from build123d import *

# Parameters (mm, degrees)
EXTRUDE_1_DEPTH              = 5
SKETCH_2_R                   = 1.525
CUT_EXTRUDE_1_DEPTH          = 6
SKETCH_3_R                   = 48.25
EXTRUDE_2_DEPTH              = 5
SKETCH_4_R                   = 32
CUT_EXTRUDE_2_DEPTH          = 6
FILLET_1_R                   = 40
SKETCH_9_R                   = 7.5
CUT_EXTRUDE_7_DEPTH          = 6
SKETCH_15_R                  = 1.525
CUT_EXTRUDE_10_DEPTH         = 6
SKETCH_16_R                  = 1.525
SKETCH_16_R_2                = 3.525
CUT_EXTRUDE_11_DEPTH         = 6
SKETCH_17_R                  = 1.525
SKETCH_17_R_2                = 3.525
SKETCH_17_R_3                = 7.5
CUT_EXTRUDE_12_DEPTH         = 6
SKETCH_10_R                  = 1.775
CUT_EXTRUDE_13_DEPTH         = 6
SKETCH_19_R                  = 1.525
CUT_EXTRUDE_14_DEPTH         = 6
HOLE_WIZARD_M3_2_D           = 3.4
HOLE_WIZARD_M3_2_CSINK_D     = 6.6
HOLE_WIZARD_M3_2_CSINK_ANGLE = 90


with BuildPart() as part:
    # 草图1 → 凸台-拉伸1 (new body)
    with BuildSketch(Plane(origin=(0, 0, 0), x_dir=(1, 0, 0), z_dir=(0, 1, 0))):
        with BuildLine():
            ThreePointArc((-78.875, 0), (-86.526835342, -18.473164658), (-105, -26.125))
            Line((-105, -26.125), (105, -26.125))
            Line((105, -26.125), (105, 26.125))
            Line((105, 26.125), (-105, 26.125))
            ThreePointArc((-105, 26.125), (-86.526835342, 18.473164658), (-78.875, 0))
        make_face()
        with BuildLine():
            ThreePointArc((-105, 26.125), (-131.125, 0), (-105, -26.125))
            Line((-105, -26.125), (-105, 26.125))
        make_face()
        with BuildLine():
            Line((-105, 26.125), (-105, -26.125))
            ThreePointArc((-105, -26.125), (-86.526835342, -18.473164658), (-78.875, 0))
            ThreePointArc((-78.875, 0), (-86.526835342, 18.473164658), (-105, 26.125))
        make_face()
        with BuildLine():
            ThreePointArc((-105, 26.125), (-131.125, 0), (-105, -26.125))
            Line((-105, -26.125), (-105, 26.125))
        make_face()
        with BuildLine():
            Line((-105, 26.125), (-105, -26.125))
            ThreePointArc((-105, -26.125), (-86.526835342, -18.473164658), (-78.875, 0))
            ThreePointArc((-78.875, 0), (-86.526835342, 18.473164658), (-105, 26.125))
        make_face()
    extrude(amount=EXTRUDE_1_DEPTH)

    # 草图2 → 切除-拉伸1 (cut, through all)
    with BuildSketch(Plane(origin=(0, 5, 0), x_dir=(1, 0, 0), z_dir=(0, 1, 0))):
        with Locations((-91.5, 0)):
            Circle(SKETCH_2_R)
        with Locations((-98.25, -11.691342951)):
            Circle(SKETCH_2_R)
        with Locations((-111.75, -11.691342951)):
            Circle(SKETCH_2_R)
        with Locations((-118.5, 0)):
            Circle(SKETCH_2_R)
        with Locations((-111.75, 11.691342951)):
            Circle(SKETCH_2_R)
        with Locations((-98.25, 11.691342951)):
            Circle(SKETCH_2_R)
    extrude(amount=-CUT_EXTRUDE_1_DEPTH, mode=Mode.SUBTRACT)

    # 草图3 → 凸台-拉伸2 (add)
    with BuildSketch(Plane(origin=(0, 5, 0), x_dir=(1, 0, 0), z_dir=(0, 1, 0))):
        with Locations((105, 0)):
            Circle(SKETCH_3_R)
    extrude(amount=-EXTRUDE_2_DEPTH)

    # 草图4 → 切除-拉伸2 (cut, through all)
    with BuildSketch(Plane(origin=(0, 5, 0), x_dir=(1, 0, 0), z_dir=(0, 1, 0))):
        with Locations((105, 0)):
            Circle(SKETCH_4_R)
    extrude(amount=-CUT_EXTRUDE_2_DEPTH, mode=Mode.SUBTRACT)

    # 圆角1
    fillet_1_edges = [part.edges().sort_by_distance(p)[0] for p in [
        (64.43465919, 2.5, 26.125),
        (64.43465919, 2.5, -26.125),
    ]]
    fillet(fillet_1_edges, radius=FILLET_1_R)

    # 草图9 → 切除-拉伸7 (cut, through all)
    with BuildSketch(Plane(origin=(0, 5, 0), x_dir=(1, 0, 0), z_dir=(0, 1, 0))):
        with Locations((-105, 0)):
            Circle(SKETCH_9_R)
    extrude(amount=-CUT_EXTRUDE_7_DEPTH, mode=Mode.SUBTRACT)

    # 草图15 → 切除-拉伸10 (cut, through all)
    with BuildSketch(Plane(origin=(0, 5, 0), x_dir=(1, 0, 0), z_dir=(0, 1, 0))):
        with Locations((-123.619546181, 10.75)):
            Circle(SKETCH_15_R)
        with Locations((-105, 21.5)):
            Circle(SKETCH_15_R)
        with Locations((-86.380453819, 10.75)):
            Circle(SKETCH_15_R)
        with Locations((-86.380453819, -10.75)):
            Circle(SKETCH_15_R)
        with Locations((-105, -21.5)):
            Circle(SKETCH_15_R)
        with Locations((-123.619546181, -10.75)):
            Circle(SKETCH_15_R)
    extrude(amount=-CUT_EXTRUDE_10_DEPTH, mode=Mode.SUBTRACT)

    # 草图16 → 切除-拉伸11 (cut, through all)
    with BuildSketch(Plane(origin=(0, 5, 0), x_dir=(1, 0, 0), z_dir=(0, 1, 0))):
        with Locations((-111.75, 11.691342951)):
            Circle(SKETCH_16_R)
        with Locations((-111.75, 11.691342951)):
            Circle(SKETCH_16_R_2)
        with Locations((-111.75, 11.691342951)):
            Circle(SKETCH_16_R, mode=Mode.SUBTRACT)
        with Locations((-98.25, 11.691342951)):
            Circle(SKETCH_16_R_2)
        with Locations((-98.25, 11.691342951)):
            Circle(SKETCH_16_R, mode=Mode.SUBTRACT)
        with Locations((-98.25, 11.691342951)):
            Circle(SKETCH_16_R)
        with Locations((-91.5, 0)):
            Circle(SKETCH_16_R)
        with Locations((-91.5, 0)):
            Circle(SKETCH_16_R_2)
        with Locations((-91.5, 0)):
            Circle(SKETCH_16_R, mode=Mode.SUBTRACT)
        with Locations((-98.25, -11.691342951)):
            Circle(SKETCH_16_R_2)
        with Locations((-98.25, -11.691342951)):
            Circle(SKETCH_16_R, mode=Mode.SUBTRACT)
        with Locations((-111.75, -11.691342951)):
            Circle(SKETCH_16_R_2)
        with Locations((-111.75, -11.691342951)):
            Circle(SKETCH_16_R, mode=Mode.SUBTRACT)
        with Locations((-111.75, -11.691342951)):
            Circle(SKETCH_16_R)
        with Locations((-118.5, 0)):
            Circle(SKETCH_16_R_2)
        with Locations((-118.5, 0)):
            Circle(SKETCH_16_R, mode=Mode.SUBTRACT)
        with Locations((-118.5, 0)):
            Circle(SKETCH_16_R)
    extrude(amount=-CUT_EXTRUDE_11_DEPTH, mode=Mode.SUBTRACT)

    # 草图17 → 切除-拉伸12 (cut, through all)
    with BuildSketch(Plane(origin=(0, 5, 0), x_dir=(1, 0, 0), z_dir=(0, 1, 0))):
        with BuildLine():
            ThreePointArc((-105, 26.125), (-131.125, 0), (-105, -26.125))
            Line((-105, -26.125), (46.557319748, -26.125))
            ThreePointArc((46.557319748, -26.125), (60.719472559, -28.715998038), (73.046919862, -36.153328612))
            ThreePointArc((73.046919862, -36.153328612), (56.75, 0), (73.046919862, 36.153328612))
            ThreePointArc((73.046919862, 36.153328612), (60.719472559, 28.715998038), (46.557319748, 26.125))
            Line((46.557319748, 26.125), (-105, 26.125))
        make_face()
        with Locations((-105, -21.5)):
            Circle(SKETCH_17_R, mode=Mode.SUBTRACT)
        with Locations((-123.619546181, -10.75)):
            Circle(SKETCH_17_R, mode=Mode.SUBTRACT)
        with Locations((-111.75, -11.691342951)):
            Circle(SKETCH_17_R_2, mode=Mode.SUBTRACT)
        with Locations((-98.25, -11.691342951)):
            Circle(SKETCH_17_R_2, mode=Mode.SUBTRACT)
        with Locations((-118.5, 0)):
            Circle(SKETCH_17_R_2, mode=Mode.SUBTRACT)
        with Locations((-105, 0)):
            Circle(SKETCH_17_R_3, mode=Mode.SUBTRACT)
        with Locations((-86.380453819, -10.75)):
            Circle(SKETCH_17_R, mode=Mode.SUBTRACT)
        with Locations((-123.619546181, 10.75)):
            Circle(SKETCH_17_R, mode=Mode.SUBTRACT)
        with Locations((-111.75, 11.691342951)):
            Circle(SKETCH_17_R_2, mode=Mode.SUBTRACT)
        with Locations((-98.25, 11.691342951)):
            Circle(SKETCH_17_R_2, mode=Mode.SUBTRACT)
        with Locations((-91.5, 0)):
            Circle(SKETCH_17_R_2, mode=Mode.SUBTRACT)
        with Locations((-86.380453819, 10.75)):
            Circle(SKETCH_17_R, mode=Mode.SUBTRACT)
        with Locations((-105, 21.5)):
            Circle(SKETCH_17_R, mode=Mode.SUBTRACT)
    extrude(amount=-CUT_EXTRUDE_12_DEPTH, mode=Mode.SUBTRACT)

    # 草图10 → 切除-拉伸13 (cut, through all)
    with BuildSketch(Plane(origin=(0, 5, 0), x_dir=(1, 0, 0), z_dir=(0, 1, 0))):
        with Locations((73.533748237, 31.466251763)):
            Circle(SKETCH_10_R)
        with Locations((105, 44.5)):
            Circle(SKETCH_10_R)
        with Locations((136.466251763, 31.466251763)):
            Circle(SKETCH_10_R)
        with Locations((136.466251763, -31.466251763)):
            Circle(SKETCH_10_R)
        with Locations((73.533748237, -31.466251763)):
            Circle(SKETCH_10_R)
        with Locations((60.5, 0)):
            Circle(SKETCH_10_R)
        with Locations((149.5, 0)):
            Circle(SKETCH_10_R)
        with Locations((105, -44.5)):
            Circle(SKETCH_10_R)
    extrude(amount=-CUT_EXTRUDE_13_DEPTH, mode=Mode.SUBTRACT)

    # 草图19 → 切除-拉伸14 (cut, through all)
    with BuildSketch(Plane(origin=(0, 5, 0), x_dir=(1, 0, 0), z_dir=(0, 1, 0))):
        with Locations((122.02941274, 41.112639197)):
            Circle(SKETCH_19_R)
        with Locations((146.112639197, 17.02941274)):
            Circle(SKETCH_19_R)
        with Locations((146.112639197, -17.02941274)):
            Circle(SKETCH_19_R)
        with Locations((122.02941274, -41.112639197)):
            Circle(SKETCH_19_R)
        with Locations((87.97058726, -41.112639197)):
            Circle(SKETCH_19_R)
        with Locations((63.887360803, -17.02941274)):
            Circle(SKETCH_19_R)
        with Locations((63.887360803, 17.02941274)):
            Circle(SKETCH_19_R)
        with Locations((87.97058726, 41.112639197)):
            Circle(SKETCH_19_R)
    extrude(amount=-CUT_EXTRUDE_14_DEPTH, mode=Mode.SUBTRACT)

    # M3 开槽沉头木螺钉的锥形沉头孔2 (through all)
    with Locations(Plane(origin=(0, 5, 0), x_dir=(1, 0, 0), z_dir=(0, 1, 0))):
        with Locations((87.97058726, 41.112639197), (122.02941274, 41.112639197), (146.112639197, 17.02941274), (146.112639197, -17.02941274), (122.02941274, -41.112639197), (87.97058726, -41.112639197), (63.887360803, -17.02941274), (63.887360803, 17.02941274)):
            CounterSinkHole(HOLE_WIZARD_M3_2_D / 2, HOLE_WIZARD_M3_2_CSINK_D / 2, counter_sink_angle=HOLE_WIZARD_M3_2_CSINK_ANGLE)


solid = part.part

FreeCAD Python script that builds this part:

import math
import FreeCAD as App
import Part
import Sketcher
Q = App.Units.Quantity


def edges_at(feature, points):
    """Names of the edges that pass closest to the given points."""
    edges = feature.Shape.Edges
    near = lambda p: min(range(len(edges)), key=lambda i: edges[i].distToShape(Part.Vertex(*p))[0])
    return sorted({f"Edge{near(p) + 1}" for p in points})

doc = App.newDocument("Part")
body = doc.addObject("PartDesign::Body", "Body")

sketch1 = body.newObject("Sketcher::SketchObject", "Sketch")
sketch1.AttachmentSupport = (doc.getObject("XZ_Plane"), [""])
sketch1.MapMode = "FlatFace"
sketch1.addGeometry([
    Part.LineSegment(App.Vector(105, 26, 0), App.Vector(105, -26, 0)),
    Part.LineSegment(App.Vector(105, -26, 0), App.Vector(-105, -26, 0)),
    Part.ArcOfCircle(Part.Circle(App.Vector(-105, 0, 0), App.Vector(0, 0, 1), 26), math.radians(90), math.radians(270)),
    Part.LineSegment(App.Vector(-105, 26, 0), App.Vector(105, 26, 0)),
], False)
sketch1.addConstraint([
    Sketcher.Constraint("Coincident", 0, 2, 1, 1),
    Sketcher.Constraint("Tangent", 1, 2, 2, 2),
    Sketcher.Constraint("Tangent", 2, 1, 3, 1),
    Sketcher.Constraint("Coincident", 3, 2, 0, 1),
    Sketcher.Constraint("Vertical", 0),
    Sketcher.Constraint("Horizontal", 1),
    Sketcher.Constraint("Horizontal", 3),
    Sketcher.Constraint("Symmetric", 0, 2, 2, 1, -1, 1),
    Sketcher.Constraint("DistanceX", 1, 2, 1, 1, Q("210 mm")),
    Sketcher.Constraint("Radius", 2, Q("26.125 mm")),
])
pad1 = body.newObject("PartDesign::Pad", "Pad")
pad1.Profile = sketch1
pad1.Length = 5
pad1.Reversed = True

sketch2 = body.newObject("Sketcher::SketchObject", "Sketch001")
sketch2.AttachmentSupport = (doc.getObject("XZ_Plane"), [""])
sketch2.MapMode = "FlatFace"
sketch2.AttachmentOffset = App.Placement(App.Vector(0, 0, -5), App.Rotation())
sketch2.addGeometry([
    Part.Circle(App.Vector(-91.5, 0, 0), App.Vector(0, 0, 1), 1.5),
    Part.Circle(App.Vector(-98.2, 11.7, 0), App.Vector(0, 0, 1), 1.5),
    Part.Circle(App.Vector(-111.8, 11.7, 0), App.Vector(0, 0, 1), 1.5),
    Part.Circle(App.Vector(-118.5, 0, 0), App.Vector(0, 0, 1), 1.5),
    Part.Circle(App.Vector(-111.8, -11.7, 0), App.Vector(0, 0, 1), 1.5),
    Part.Circle(App.Vector(-98.2, -11.7, 0), App.Vector(0, 0, 1), 1.5),
], False)
sketch2.addConstraint([
    Sketcher.Constraint("Equal", 0, 1),
    Sketcher.Constraint("Equal", 1, 2),
    Sketcher.Constraint("Equal", 2, 3),
    Sketcher.Constraint("Equal", 3, 4),
    Sketcher.Constraint("Equal", 4, 5),
    Sketcher.Constraint("Symmetric", 2, 3, 4, 3, -1),
    Sketcher.Constraint("Symmetric", 1, 3, 5, 3, -1),
    Sketcher.Constraint("PointOnObject", 0, 3, -1),
    Sketcher.Constraint("PointOnObject", 3, 3, -1),
    Sketcher.Constraint("Horizontal", 1, 3, 2, 3),
    Sketcher.Constraint("Diameter", 0, Q("3.05 mm")),
    Sketcher.Constraint("DistanceX", 3, 3, 0, 3, Q("27 mm")),
    Sketcher.Constraint("DistanceX", 0, 3, -1, 1, Q("91.5 mm")),
    Sketcher.Constraint("DistanceX", 2, 3, 1, 3, Q("13.5 mm")),
    Sketcher.Constraint("DistanceX", 1, 3, -1, 1, Q("98.25 mm")),
    Sketcher.Constraint("DistanceY", -1, 1, 1, 3, Q("11.691343 mm")),
])
pocket1 = body.newObject("PartDesign::Pocket", "Pocket")
pocket1.Profile = sketch2
pocket1.Type = "ThroughAll"
pocket1.Reversed = True

sketch3 = body.newObject("Sketcher::SketchObject", "Sketch002")
sketch3.AttachmentSupport = (doc.getObject("XZ_Plane"), [""])
sketch3.MapMode = "FlatFace"
sketch3.AttachmentOffset = App.Placement(App.Vector(0, 0, -5), App.Rotation())
sketch3.addGeometry(Part.Circle(App.Vector(105, 0, 0), App.Vector(0, 0, 1), 48), False)
sketch3.addConstraint([
    Sketcher.Constraint("PointOnObject", 0, 3, -1),
    Sketcher.Constraint("Diameter", 0, Q("96.5 mm")),
    Sketcher.Constraint("DistanceX", -1, 1, 0, 3, Q("105 mm")),
])
pad2 = body.newObject("PartDesign::Pad", "Pad001")
pad2.Profile = sketch3
pad2.Length = 5

sketch4 = body.newObject("Sketcher::SketchObject", "Sketch003")
sketch4.AttachmentSupport = (doc.getObject("XZ_Plane"), [""])
sketch4.MapMode = "FlatFace"
sketch4.AttachmentOffset = App.Placement(App.Vector(0, 0, -5), App.Rotation())
sketch4.addGeometry(Part.Circle(App.Vector(105, 0, 0), App.Vector(0, 0, 1), 32), False)
sketch4.addConstraint([
    Sketcher.Constraint("PointOnObject", 0, 3, -1),
    Sketcher.Constraint("Diameter", 0, Q("64 mm")),
    Sketcher.Constraint("DistanceX", -1, 1, 0, 3, Q("105 mm")),
])
pocket2 = body.newObject("PartDesign::Pocket", "Pocket001")
pocket2.Profile = sketch4
pocket2.Type = "ThroughAll"
pocket2.Reversed = True
doc.recompute()

fillet = body.newObject("PartDesign::Fillet", "Fillet")
fillet.Base = (pocket2, edges_at(pocket2, [(64.435, 2.5, 26.125), (64.435, 2.5, -26.125)]))
fillet.Radius = 40

sketch5 = body.newObject("Sketcher::SketchObject", "Sketch004")
sketch5.AttachmentSupport = (doc.getObject("XZ_Plane"), [""])
sketch5.MapMode = "FlatFace"
sketch5.AttachmentOffset = App.Placement(App.Vector(0, 0, -5), App.Rotation())
sketch5.addGeometry(Part.Circle(App.Vector(-105, 0, 0), App.Vector(0, 0, 1), 8), False)
sketch5.addConstraint([
    Sketcher.Constraint("PointOnObject", 0, 3, -1),
    Sketcher.Constraint("Diameter", 0, Q("15 mm")),
    Sketcher.Constraint("DistanceX", 0, 3, -1, 1, Q("105 mm")),
])
pocket3 = body.newObject("PartDesign::Pocket", "Pocket002")
pocket3.Profile = sketch5
pocket3.Type = "ThroughAll"
pocket3.Reversed = True

sketch6 = body.newObject("Sketcher::SketchObject", "Sketch005")
sketch6.AttachmentSupport = (doc.getObject("XZ_Plane"), [""])
sketch6.MapMode = "FlatFace"
sketch6.AttachmentOffset = App.Placement(App.Vector(0, 0, -5), App.Rotation())
sketch6.addGeometry([
    Part.Circle(App.Vector(-123.6, -10.8, 0), App.Vector(0, 0, 1), 1.5),
    Part.Circle(App.Vector(-105, -21.5, 0), App.Vector(0, 0, 1), 1.5),
    Part.Circle(App.Vector(-86.4, -10.8, 0), App.Vector(0, 0, 1), 1.5),
    Part.Circle(App.Vector(-86.4, 10.8, 0), App.Vector(0, 0, 1), 1.5),
    Part.Circle(App.Vector(-105, 21.5, 0), App.Vector(0, 0, 1), 1.5),
    Part.Circle(App.Vector(-123.6, 10.8, 0), App.Vector(0, 0, 1), 1.5),
], False)
sketch6.addConstraint([
    Sketcher.Constraint("Equal", 0, 1),
    Sketcher.Constraint("Equal", 1, 2),
    Sketcher.Constraint("Equal", 2, 3),
    Sketcher.Constraint("Equal", 3, 4),
    Sketcher.Constraint("Equal", 4, 5),
    Sketcher.Constraint("Symmetric", 2, 3, 3, 3, -1),
    Sketcher.Constraint("Symmetric", 1, 3, 4, 3, -1),
    Sketcher.Constraint("Symmetric", 0, 3, 5, 3, -1),
    Sketcher.Constraint("Horizontal", 0, 3, 2, 3),
    Sketcher.Constraint("Diameter", 0, Q("3.05 mm")),
    Sketcher.Constraint("DistanceX", 1, 3, -1, 1, Q("105 mm")),
    Sketcher.Constraint("DistanceY", 1, 3, 4, 3, Q("43 mm")),
    Sketcher.Constraint("DistanceY", 2, 3, 3, 3, Q("21.5 mm")),
    Sketcher.Constraint("DistanceX", 0, 3, -1, 1, Q("123.619546 mm")),
    Sketcher.Constraint("DistanceX", 2, 3, -1, 1, Q("86.380454 mm")),
])
pocket4 = body.newObject("PartDesign::Pocket", "Pocket003")
pocket4.Profile = sketch6
pocket4.Type = "ThroughAll"
pocket4.Reversed = True

sketch7 = body.newObject("Sketcher::SketchObject", "Sketch006")
sketch7.AttachmentSupport = (doc.getObject("XZ_Plane"), [""])
sketch7.MapMode = "FlatFace"
sketch7.AttachmentOffset = App.Placement(App.Vector(0, 0, -5), App.Rotation())
sketch7.addGeometry([
    Part.Circle(App.Vector(-111.8, -11.7, 0), App.Vector(0, 0, 1), 3.5),
    Part.Circle(App.Vector(-111.8, -11.7, 0), App.Vector(0, 0, 1), 1.5),
    Part.Circle(App.Vector(-98.2, -11.7, 0), App.Vector(0, 0, 1), 3.5),
    Part.Circle(App.Vector(-91.5, 0, 0), App.Vector(0, 0, 1), 3.5),
    Part.Circle(App.Vector(-91.5, 0, 0), App.Vector(0, 0, 1), 1.5),
    Part.Circle(App.Vector(-98.2, 11.7, 0), App.Vector(0, 0, 1), 3.5),
    Part.Circle(App.Vector(-98.2, 11.7, 0), App.Vector(0, 0, 1), 1.5),
    Part.Circle(App.Vector(-111.8, 11.7, 0), App.Vector(0, 0, 1), 3.5),
    Part.Circle(App.Vector(-118.5, 0, 0), App.Vector(0, 0, 1), 3.5),
], False)
sketch7.addConstraint([
    Sketcher.Constraint("Coincident", 1, 3, 0, 3),
    Sketcher.Constraint("Coincident", 4, 3, 3, 3),
    Sketcher.Constraint("Coincident", 6, 3, 5, 3),
    Sketcher.Constraint("Equal", 0, 2),
    Sketcher.Constraint("Equal", 2, 3),
    Sketcher.Constraint("Equal", 1, 4),
    Sketcher.Constraint("Equal", 3, 5),
    Sketcher.Constraint("Equal", 4, 6),
    Sketcher.Constraint("Equal", 5, 7),
    Sketcher.Constraint("Equal", 7, 8),
    Sketcher.Constraint("Symmetric", 2, 3, 5, 3, -1),
    Sketcher.Constraint("Symmetric", 0, 3, 7, 3, -1),
    Sketcher.Constraint("PointOnObject", 3, 3, -1),
    Sketcher.Constraint("PointOnObject", 8, 3, -1),
    Sketcher.Constraint("Horizontal", 1, 3, 2, 3),
    Sketcher.Constraint("Diameter", 0, Q("7.05 mm")),
    Sketcher.Constraint("Diameter", 1, Q("3.05 mm")),
    Sketcher.Constraint("DistanceX", 3, 3, -1, 1, Q("91.5 mm")),
    Sketcher.Constraint("DistanceX", 8, 3, -1, 1, Q("118.5 mm")),
    Sketcher.Constraint("DistanceX", 0, 3, 2, 3, Q("13.5 mm")),
    Sketcher.Constraint("DistanceX", 0, 3, -1, 1, Q("111.75 mm")),
    Sketcher.Constraint("DistanceY", 0, 3, -1, 1, Q("11.691343 mm")),
])
pocket5 = body.newObject("PartDesign::Pocket", "Pocket004")
pocket5.Profile = sketch7
pocket5.Type = "ThroughAll"
pocket5.Reversed = True

sketch8 = body.newObject("Sketcher::SketchObject", "Sketch007")
sketch8.AttachmentSupport = (doc.getObject("XZ_Plane"), [""])
sketch8.MapMode = "FlatFace"
sketch8.AttachmentOffset = App.Placement(App.Vector(0, 0, -5), App.Rotation())
sketch8.addGeometry([
    Part.ArcOfCircle(Part.Circle(App.Vector(-105, 0, 0), App.Vector(0, 0, 1), 26.1), math.radians(90), math.radians(270)),
    Part.LineSegment(App.Vector(-105, 26.1, 0), App.Vector(46.6, 26.1, 0)),
    Part.ArcOfCircle(Part.Circle(App.Vector(46.6, 66.1, 0), App.Vector(0, 0, 1), 40), math.radians(-90), math.radians(-49)),
    Part.ArcOfCircle(Part.Circle(App.Vector(105, 0, 0), App.Vector(0, 0, 1), 48.3), math.radians(131), math.radians(229)),
    Part.ArcOfCircle(Part.Circle(App.Vector(46.6, -66.1, 0), App.Vector(0, 0, 1), 40), math.radians(49), math.radians(90)),
    Part.LineSegment(App.Vector(46.6, -26.1, 0), App.Vector(-105, -26.1, 0)),
    Part.Circle(App.Vector(-111.8, 11.7, 0), App.Vector(0, 0, 1), 3.5),
    Part.Circle(App.Vector(-123.6, 10.8, 0), App.Vector(0, 0, 1), 1.5),
    Part.Circle(App.Vector(-105, 21.5, 0), App.Vector(0, 0, 1), 1.5),
    Part.Circle(App.Vector(-98.2, 11.7, 0), App.Vector(0, 0, 1), 3.5),
    Part.Circle(App.Vector(-86.4, 10.8, 0), App.Vector(0, 0, 1), 1.5),
    Part.Circle(App.Vector(-118.5, 0, 0), App.Vector(0, 0, 1), 3.5),
    Part.Circle(App.Vector(-123.6, -10.8, 0), App.Vector(0, 0, 1), 1.5),
    Part.Circle(App.Vector(-111.8, -11.7, 0), App.Vector(0, 0, 1), 3.5),
    Part.Circle(App.Vector(-105, 0, 0), App.Vector(0, 0, 1), 7.5),
    Part.Circle(App.Vector(-91.5, 0, 0), App.Vector(0, 0, 1), 3.5),
    Part.Circle(App.Vector(-86.4, -10.8, 0), App.Vector(0, 0, 1), 1.5),
    Part.Circle(App.Vector(-98.2, -11.7, 0), App.Vector(0, 0, 1), 3.5),
    Part.Circle(App.Vector(-105, -21.5, 0), App.Vector(0, 0, 1), 1.5),
], False)
sketch8.addConstraint([
    Sketcher.Constraint("Tangent", 0, 1, 1, 1),
    Sketcher.Constraint("Tangent", 1, 2, 2, 1),
    Sketcher.Constraint("Tangent", 2, 2, 3, 1),
    Sketcher.Constraint("Tangent", 3, 2, 4, 1),
    Sketcher.Constraint("Tangent", 4, 2, 5, 1),
    Sketcher.Constraint("Tangent", 5, 2, 0, 2),
    Sketcher.Constraint("Horizontal", 1),
    Sketcher.Constraint("Horizontal", 5),
    Sketcher.Constraint("Coincident", 14, 3, 0, 3),
    Sketcher.Constraint("Equal", 2, 4),
    Sketcher.Constraint("Equal", 7, 8),
    Sketcher.Constraint("Equal", 6, 9),
    Sketcher.Constraint("Equal", 8, 10),
    Sketcher.Constraint("Equal", 9, 11),
    Sketcher.Constraint("Equal", 10, 12),
    Sketcher.Constraint("Equal", 11, 13),
    Sketcher.Constraint("Equal", 13, 15),
    Sketcher.Constraint("Equal", 12, 16),
    Sketcher.Constraint("Equal", 15, 17),
    Sketcher.Constraint("Equal", 16, 18),
    Sketcher.Constraint("Symmetric", 0, 3, 3, 3, -1, 1),
    Sketcher.Constraint("Symmetric", 7, 3, 12, 3, -1),
    Sketcher.Constraint("Symmetric", 6, 3, 13, 3, -1),
    Sketcher.Constraint("Symmetric", 10, 3, 16, 3, -1),
    Sketcher.Constraint("Symmetric", 9, 3, 17, 3, -1),
    Sketcher.Constraint("Symmetric", 8, 3, 18, 3, -1),
    Sketcher.Constraint("PointOnObject", 0, 3, -1),
    Sketcher.Constraint("PointOnObject", 11, 3, -1),
    Sketcher.Constraint("PointOnObject", 15, 3, -1),
    Sketcher.Constraint("Horizontal", 6, 3, 9, 3),
    Sketcher.Constraint("Horizontal", 7, 3, 10, 3),
    Sketcher.Constraint("Vertical", 0, 3, 8, 3),
    Sketcher.Constraint("Diameter", 14, Q("15 mm")),
    Sketcher.Constraint("Radius", 2, Q("40 mm")),
    Sketcher.Constraint("Diameter", 6, Q("7.05 mm")),
    Sketcher.Constraint("Diameter", 7, Q("3.05 mm")),
    Sketcher.Constraint("Radius", 3, Q("48.25 mm")),
    Sketcher.Constraint("DistanceX", 0, 3, -1, 1, Q("105 mm")),
    Sketcher.Constraint("Radius", 0, Q("26.125 mm")),
    Sketcher.Constraint("DistanceY", -1, 1, 8, 3, Q("21.5 mm")),
    Sketcher.Constraint("DistanceX", 11, 3, -1, 1, Q("118.5 mm")),
    Sketcher.Constraint("DistanceX", 15, 3, -1, 1, Q("91.5 mm")),
    Sketcher.Constraint("DistanceX", 6, 3, 9, 3, Q("13.5 mm")),
    Sketcher.Constraint("DistanceY", 12, 3, 7, 3, Q("21.5 mm")),
    Sketcher.Constraint("DistanceX", 6, 3, -1, 1, Q("111.75 mm")),
    Sketcher.Constraint("DistanceY", -1, 1, 6, 3, Q("11.691343 mm")),
    Sketcher.Constraint("DistanceX", 7, 3, -1, 1, Q("123.619546 mm")),
    Sketcher.Constraint("DistanceX", 10, 3, -1, 1, Q("86.380454 mm")),
])
pocket6 = body.newObject("PartDesign::Pocket", "Pocket005")
pocket6.Profile = sketch8
pocket6.Type = "ThroughAll"
pocket6.Reversed = True

sketch9 = body.newObject("Sketcher::SketchObject", "Sketch008")
sketch9.AttachmentSupport = (doc.getObject("XZ_Plane"), [""])
sketch9.MapMode = "FlatFace"
sketch9.AttachmentOffset = App.Placement(App.Vector(0, 0, -5), App.Rotation())
sketch9.addGeometry([
    Part.Circle(App.Vector(73.5, -31.5, 0), App.Vector(0, 0, 1), 1.8),
    Part.Circle(App.Vector(105, -44.5, 0), App.Vector(0, 0, 1), 1.8),
    Part.Circle(App.Vector(136.5, -31.5, 0), App.Vector(0, 0, 1), 1.8),
    Part.Circle(App.Vector(136.5, 31.5, 0), App.Vector(0, 0, 1), 1.8),
    Part.Circle(App.Vector(73.5, 31.5, 0), App.Vector(0, 0, 1), 1.8),
    Part.Circle(App.Vector(60.5, 0, 0), App.Vector(0, 0, 1), 1.8),
    Part.Circle(App.Vector(149.5, 0, 0), App.Vector(0, 0, 1), 1.8),
    Part.Circle(App.Vector(105, 44.5, 0), App.Vector(0, 0, 1), 1.8),
], False)
sketch9.addConstraint([
    Sketcher.Constraint("Equal", 0, 1),
    Sketcher.Constraint("Equal", 1, 2),
    Sketcher.Constraint("Equal", 2, 3),
    Sketcher.Constraint("Equal", 3, 4),
    Sketcher.Constraint("Equal", 4, 5),
    Sketcher.Constraint("Equal", 5, 6),
    Sketcher.Constraint("Equal", 6, 7),
    Sketcher.Constraint("Symmetric", 2, 3, 3, 3, -1),
    Sketcher.Constraint("Symmetric", 0, 3, 4, 3, -1),
    Sketcher.Constraint("Symmetric", 1, 3, 7, 3, -1),
    Sketcher.Constraint("PointOnObject", 5, 3, -1),
    Sketcher.Constraint("PointOnObject", 6, 3, -1),
    Sketcher.Constraint("Horizontal", 0, 3, 2, 3),
    Sketcher.Constraint("Diameter", 0, Q("3.55 mm")),
    Sketcher.Constraint("DistanceX", -1, 1, 1, 3, Q("105 mm")),
    Sketcher.Constraint("DistanceY", 1, 3, -1, 1, Q("44.5 mm")),
    Sketcher.Constraint("DistanceX", -1, 1, 5, 3, Q("60.5 mm")),
    Sketcher.Constraint("DistanceX", -1, 1, 6, 3, Q("149.5 mm")),
    Sketcher.Constraint("DistanceX", -1, 1, 0, 3, Q("73.533748 mm")),
    Sketcher.Constraint("DistanceY", 0, 3, -1, 1, Q("31.466252 mm")),
    Sketcher.Constraint("DistanceX", -1, 1, 2, 3, Q("136.466252 mm")),
])
pocket7 = body.newObject("PartDesign::Pocket", "Pocket006")
pocket7.Profile = sketch9
pocket7.Type = "ThroughAll"
pocket7.Reversed = True

sketch10 = body.newObject("Sketcher::SketchObject", "Sketch009")
sketch10.AttachmentSupport = (doc.getObject("XZ_Plane"), [""])
sketch10.MapMode = "FlatFace"
sketch10.AttachmentOffset = App.Placement(App.Vector(0, 0, -5), App.Rotation())
sketch10.addGeometry([
    Part.Circle(App.Vector(122, -41.1, 0), App.Vector(0, 0, 1), 1.5),
    Part.Circle(App.Vector(146.1, -17, 0), App.Vector(0, 0, 1), 1.5),
    Part.Circle(App.Vector(146.1, 17, 0), App.Vector(0, 0, 1), 1.5),
    Part.Circle(App.Vector(122, 41.1, 0), App.Vector(0, 0, 1), 1.5),
    Part.Circle(App.Vector(88, 41.1, 0), App.Vector(0, 0, 1), 1.5),
    Part.Circle(App.Vector(63.9, 17, 0), App.Vector(0, 0, 1), 1.5),
    Part.Circle(App.Vector(63.9, -17, 0), App.Vector(0, 0, 1), 1.5),
    Part.Circle(App.Vector(88, -41.1, 0), App.Vector(0, 0, 1), 1.5),
], False)
sketch10.addConstraint([
    Sketcher.Constraint("Equal", 0, 1),
    Sketcher.Constraint("Equal", 1, 2),
    Sketcher.Constraint("Equal", 2, 3),
    Sketcher.Constraint("Equal", 3, 4),
    Sketcher.Constraint("Equal", 4, 5),
    Sketcher.Constraint("Equal", 5, 6),
    Sketcher.Constraint("Equal", 6, 7),
    Sketcher.Constraint("Symmetric", 1, 3, 2, 3, -1),
    Sketcher.Constraint("Symmetric", 0, 3, 3, 3, -1),
    Sketcher.Constraint("Symmetric", 5, 3, 6, 3, -1),
    Sketcher.Constraint("Symmetric", 4, 3, 7, 3, -1),
    Sketcher.Constraint("Horizontal", 3, 3, 4, 3),
    Sketcher.Constraint("Horizontal", 2, 3, 5, 3),
    Sketcher.Constraint("Diameter", 0, Q("3.05 mm")),
    Sketcher.Constraint("DistanceY", 0, 3, -1, 1, Q("41.112639 mm")),
    Sketcher.Constraint("DistanceX", -1, 1, 1, 3, Q("146.112639 mm")),
    Sketcher.Constraint("DistanceX", -1, 1, 5, 3, Q("63.887361 mm")),
    Sketcher.Constraint("DistanceY", 0, 3, 2, 3, Q("58.142052 mm")),
    Sketcher.Constraint("DistanceX", 4, 3, 2, 3, Q("58.142052 mm")),
    Sketcher.Constraint("DistanceX", 5, 3, 3, 3, Q("58.142052 mm")),
])
pocket8 = body.newObject("PartDesign::Pocket", "Pocket007")
pocket8.Profile = sketch10
pocket8.Type = "ThroughAll"
pocket8.Reversed = True

sketch11 = body.newObject("Sketcher::SketchObject", "Sketch010")
sketch11.AttachmentSupport = (doc.getObject("XZ_Plane"), [""])
sketch11.MapMode = "FlatFace"
sketch11.AttachmentOffset = App.Placement(App.Vector(0, 0, -5), App.Rotation())
sketch11.addGeometry([
    Part.Circle(App.Vector(88, -41.1, 0), App.Vector(0, 0, 1), 1.7),
    Part.Circle(App.Vector(122, -41.1, 0), App.Vector(0, 0, 1), 1.7),
    Part.Circle(App.Vector(146.1, -17, 0), App.Vector(0, 0, 1), 1.7),
    Part.Circle(App.Vector(146.1, 17, 0), App.Vector(0, 0, 1), 1.7),
    Part.Circle(App.Vector(122, 41.1, 0), App.Vector(0, 0, 1), 1.7),
    Part.Circle(App.Vector(88, 41.1, 0), App.Vector(0, 0, 1), 1.7),
    Part.Circle(App.Vector(63.9, 17, 0), App.Vector(0, 0, 1), 1.7),
    Part.Circle(App.Vector(63.9, -17, 0), App.Vector(0, 0, 1), 1.7),
], False)
sketch11.addConstraint([
    Sketcher.Constraint("Equal", 0, 1),
    Sketcher.Constraint("Equal", 1, 2),
    Sketcher.Constraint("Equal", 2, 3),
    Sketcher.Constraint("Equal", 3, 4),
    Sketcher.Constraint("Equal", 4, 5),
    Sketcher.Constraint("Equal", 5, 6),
    Sketcher.Constraint("Equal", 6, 7),
    Sketcher.Constraint("Symmetric", 2, 3, 3, 3, -1),
    Sketcher.Constraint("Symmetric", 1, 3, 4, 3, -1),
    Sketcher.Constraint("Symmetric", 0, 3, 5, 3, -1),
    Sketcher.Constraint("Symmetric", 6, 3, 7, 3, -1),
    Sketcher.Constraint("Horizontal", 0, 3, 1, 3),
    Sketcher.Constraint("Horizontal", 3, 3, 6, 3),
    Sketcher.Constraint("Diameter", 0, Q("3.4 mm")),
    Sketcher.Constraint("DistanceY", 0, 3, -1, 1, Q("41.112639 mm")),
    Sketcher.Constraint("DistanceX", -1, 1, 2, 3, Q("146.112639 mm")),
    Sketcher.Constraint("DistanceX", -1, 1, 6, 3, Q("63.887361 mm")),
    Sketcher.Constraint("DistanceX", 0, 3, 2, 3, Q("58.142052 mm")),
    Sketcher.Constraint("DistanceY", 1, 3, 3, 3, Q("58.142052 mm")),
    Sketcher.Constraint("DistanceX", 6, 3, 4, 3, Q("58.142052 mm")),
])
doc.recompute()
hole = body.newObject("PartDesign::Hole", "Hole")
hole.Profile = sketch11
hole.ThreadType = "None"
hole.Diameter = 3.4
hole.DepthType = "ThroughAll"
hole.HoleCutType = "Countersink"
hole.HoleCutDiameter = 6.6
hole.HoleCutCountersinkAngle = 90
hole.Reversed = True

doc.recompute()
